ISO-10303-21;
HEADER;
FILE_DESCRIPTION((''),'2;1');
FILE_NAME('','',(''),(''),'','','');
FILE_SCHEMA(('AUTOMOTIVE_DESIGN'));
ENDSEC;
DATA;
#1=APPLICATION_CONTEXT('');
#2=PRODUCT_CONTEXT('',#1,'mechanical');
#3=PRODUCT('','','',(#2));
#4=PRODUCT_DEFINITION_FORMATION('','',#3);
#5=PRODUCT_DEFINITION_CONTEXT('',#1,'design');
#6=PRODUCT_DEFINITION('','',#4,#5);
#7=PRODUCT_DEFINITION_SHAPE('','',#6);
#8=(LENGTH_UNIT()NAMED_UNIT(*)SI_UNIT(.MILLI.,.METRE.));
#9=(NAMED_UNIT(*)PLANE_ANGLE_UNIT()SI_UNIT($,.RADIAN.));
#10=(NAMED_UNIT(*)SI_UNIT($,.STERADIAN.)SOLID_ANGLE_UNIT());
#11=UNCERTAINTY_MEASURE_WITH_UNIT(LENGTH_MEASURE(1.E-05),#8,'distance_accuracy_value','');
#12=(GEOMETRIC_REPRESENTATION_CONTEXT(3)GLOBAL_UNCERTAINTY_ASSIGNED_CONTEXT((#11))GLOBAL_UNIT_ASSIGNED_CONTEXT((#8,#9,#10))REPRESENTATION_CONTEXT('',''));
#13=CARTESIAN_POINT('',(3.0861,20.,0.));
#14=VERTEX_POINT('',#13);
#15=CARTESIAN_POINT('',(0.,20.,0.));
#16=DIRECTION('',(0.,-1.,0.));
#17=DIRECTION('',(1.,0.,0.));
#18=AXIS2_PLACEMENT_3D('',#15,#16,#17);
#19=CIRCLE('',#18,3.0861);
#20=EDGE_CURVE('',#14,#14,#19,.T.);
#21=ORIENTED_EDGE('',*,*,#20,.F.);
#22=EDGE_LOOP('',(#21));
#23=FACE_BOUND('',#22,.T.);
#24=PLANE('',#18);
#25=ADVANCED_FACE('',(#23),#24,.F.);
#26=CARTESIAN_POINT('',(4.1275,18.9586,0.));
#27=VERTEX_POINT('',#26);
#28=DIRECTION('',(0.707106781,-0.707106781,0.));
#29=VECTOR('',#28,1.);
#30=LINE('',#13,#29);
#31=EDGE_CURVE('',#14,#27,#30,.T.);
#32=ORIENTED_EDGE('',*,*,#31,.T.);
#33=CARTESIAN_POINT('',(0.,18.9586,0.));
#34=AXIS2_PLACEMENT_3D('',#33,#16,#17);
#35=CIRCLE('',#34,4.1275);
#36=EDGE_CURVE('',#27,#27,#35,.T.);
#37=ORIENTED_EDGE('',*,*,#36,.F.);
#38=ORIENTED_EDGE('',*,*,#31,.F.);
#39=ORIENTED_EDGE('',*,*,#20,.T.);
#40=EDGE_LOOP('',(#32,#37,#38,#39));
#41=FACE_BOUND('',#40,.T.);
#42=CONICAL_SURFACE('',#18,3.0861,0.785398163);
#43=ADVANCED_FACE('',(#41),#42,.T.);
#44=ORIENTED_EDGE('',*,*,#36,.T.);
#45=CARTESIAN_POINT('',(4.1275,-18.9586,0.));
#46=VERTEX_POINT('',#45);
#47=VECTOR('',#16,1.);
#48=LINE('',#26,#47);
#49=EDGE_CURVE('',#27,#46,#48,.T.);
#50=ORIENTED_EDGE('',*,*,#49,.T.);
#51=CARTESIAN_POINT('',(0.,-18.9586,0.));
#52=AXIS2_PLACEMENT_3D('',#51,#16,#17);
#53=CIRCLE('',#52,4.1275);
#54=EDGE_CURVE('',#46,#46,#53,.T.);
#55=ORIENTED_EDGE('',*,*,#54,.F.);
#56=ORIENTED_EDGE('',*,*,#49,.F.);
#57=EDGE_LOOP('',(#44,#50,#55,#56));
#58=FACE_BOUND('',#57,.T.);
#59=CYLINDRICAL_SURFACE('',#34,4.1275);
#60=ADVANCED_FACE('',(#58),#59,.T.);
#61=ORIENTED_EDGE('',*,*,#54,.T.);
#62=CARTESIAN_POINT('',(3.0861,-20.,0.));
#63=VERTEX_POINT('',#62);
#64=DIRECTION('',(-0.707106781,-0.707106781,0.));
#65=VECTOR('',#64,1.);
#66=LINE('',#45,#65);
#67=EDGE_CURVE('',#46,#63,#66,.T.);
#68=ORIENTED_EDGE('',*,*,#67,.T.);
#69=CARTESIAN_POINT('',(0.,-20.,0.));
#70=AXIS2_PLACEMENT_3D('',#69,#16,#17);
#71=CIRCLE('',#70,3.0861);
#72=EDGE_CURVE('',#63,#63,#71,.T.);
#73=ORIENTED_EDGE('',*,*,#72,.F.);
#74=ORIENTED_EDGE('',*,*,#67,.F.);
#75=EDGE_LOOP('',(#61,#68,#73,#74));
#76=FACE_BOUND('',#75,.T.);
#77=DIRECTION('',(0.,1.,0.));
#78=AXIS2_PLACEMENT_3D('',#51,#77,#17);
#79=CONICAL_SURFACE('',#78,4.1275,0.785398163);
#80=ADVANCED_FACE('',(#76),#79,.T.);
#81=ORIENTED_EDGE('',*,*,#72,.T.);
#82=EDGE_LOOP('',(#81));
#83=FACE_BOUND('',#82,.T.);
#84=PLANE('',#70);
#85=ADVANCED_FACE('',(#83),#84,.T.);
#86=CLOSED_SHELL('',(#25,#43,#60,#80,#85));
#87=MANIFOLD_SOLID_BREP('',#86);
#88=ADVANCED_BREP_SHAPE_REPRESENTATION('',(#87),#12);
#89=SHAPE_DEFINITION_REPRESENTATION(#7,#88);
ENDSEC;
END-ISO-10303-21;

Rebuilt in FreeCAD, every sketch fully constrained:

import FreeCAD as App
import Part
import Sketcher
Q = App.Units.Quantity


def add_polygon(sketch, points):
    """Adds a closed chain of lines whose ends are joined by coincident constraints."""
    first, n = sketch.GeometryCount, len(points)
    for a, b in zip(points, points[1:] + points[:1]):
        sketch.addGeometry(Part.LineSegment(App.Vector(*a, 0), App.Vector(*b, 0)), False)
    for i in range(n):
        sketch.addConstraint(Sketcher.Constraint("Coincident", first + i, 2, first + (i + 1) % n, 1))

doc = App.newDocument("Part")
body = doc.addObject("PartDesign::Body", "Body")

# Sketch on XY plane
sketch1 = body.newObject("Sketcher::SketchObject", "Sketch")
sketch1.AttachmentSupport = (doc.getObject("XY_Plane"), [""])
sketch1.MapMode = "FlatFace"
add_polygon(sketch1, [(0, 20), (0, -20), (3.1, -20), (4.1, -19), (4.1, 19), (3.1, 20)])  # lines 0-5
sketch1.addConstraint([
    Sketcher.Constraint("Vertical", 0),
    Sketcher.Constraint("Horizontal", 1),
    Sketcher.Constraint("Vertical", 3),
    Sketcher.Constraint("Horizontal", 5),
    Sketcher.Constraint("Symmetric", 0, 2, 5, 2, -1, 1),
    Sketcher.Constraint("Perpendicular", 2, 4),
    Sketcher.Constraint("Vertical", 1, 2, 4, 2),
    Sketcher.Constraint("Equal", 2, 4),
    Sketcher.Constraint("DistanceY", 0, 2, 0, 1, Q("40 mm")),
    Sketcher.Constraint("DistanceX", 1, 1, 1, 2, Q("3.086 mm")),
    Sketcher.Constraint("DistanceY", 3, 1, 3, 2, Q("37.9172 mm")),
])
revolution = body.newObject("PartDesign::Revolution", "Revolution")
revolution.Profile = sketch1
revolution.ReferenceAxis = (sketch1, ["V_Axis"])
revolution.Angle = 360

doc.recompute()
